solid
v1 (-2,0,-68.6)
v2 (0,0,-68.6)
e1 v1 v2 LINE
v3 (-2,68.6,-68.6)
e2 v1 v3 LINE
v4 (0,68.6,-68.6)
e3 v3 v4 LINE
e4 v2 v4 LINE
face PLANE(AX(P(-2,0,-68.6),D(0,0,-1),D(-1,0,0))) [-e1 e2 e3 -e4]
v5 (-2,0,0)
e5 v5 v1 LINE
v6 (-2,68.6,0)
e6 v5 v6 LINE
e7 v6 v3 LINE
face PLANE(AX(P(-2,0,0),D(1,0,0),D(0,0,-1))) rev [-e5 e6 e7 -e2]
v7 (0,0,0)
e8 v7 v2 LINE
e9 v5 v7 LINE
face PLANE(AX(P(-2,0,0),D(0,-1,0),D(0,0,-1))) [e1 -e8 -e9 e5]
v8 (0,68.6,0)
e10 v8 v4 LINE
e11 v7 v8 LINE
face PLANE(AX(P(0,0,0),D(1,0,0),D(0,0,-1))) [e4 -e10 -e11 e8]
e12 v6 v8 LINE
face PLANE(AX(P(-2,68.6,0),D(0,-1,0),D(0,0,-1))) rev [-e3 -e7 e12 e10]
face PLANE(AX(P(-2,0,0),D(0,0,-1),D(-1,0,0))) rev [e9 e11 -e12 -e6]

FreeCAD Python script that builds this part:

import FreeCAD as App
import Part
import Sketcher

V = App.Vector

doc = App.newDocument("Part")
body = doc.addObject("PartDesign::Body", "Body")

sketch1 = body.newObject("Sketcher::SketchObject", "Sketch")
sketch1.AttachmentSupport = (doc.getObject("YZ_Plane"), [""])
sketch1.MapMode = "FlatFace"
sketch1.addGeometry([
    Part.LineSegment(V(69, 0, 0), V(0, 0, 0)),
    Part.LineSegment(V(0, 0, 0), V(0, -69, 0)),
    Part.LineSegment(V(0, -69, 0), V(69, -69, 0)),
    Part.LineSegment(V(69, -69, 0), V(69, 0, 0)),
], False)
sketch1.addConstraint([
    Sketcher.Constraint("Coincident", 0, 2, 1, 1),
    Sketcher.Constraint("Coincident", 1, 2, 2, 1),
    Sketcher.Constraint("Coincident", 2, 2, 3, 1),
    Sketcher.Constraint("Coincident", 3, 2, 0, 1),
    Sketcher.Constraint("Horizontal", 0),
    Sketcher.Constraint("Vertical", 1),
    Sketcher.Constraint("Horizontal", 2),
    Sketcher.Constraint("Vertical", 3),
    Sketcher.Constraint("Coincident", 0, 2, -1, 1),
    Sketcher.Constraint("Equal", 2, 1),
    Sketcher.Constraint("DistanceX", 0, 2, 0, 1, 68.6),
])
pad1 = body.newObject("PartDesign::Pad", "Pad")
pad1.Profile = sketch1
pad1.Length = 2
pad1.Reversed = True

doc.recompute()
